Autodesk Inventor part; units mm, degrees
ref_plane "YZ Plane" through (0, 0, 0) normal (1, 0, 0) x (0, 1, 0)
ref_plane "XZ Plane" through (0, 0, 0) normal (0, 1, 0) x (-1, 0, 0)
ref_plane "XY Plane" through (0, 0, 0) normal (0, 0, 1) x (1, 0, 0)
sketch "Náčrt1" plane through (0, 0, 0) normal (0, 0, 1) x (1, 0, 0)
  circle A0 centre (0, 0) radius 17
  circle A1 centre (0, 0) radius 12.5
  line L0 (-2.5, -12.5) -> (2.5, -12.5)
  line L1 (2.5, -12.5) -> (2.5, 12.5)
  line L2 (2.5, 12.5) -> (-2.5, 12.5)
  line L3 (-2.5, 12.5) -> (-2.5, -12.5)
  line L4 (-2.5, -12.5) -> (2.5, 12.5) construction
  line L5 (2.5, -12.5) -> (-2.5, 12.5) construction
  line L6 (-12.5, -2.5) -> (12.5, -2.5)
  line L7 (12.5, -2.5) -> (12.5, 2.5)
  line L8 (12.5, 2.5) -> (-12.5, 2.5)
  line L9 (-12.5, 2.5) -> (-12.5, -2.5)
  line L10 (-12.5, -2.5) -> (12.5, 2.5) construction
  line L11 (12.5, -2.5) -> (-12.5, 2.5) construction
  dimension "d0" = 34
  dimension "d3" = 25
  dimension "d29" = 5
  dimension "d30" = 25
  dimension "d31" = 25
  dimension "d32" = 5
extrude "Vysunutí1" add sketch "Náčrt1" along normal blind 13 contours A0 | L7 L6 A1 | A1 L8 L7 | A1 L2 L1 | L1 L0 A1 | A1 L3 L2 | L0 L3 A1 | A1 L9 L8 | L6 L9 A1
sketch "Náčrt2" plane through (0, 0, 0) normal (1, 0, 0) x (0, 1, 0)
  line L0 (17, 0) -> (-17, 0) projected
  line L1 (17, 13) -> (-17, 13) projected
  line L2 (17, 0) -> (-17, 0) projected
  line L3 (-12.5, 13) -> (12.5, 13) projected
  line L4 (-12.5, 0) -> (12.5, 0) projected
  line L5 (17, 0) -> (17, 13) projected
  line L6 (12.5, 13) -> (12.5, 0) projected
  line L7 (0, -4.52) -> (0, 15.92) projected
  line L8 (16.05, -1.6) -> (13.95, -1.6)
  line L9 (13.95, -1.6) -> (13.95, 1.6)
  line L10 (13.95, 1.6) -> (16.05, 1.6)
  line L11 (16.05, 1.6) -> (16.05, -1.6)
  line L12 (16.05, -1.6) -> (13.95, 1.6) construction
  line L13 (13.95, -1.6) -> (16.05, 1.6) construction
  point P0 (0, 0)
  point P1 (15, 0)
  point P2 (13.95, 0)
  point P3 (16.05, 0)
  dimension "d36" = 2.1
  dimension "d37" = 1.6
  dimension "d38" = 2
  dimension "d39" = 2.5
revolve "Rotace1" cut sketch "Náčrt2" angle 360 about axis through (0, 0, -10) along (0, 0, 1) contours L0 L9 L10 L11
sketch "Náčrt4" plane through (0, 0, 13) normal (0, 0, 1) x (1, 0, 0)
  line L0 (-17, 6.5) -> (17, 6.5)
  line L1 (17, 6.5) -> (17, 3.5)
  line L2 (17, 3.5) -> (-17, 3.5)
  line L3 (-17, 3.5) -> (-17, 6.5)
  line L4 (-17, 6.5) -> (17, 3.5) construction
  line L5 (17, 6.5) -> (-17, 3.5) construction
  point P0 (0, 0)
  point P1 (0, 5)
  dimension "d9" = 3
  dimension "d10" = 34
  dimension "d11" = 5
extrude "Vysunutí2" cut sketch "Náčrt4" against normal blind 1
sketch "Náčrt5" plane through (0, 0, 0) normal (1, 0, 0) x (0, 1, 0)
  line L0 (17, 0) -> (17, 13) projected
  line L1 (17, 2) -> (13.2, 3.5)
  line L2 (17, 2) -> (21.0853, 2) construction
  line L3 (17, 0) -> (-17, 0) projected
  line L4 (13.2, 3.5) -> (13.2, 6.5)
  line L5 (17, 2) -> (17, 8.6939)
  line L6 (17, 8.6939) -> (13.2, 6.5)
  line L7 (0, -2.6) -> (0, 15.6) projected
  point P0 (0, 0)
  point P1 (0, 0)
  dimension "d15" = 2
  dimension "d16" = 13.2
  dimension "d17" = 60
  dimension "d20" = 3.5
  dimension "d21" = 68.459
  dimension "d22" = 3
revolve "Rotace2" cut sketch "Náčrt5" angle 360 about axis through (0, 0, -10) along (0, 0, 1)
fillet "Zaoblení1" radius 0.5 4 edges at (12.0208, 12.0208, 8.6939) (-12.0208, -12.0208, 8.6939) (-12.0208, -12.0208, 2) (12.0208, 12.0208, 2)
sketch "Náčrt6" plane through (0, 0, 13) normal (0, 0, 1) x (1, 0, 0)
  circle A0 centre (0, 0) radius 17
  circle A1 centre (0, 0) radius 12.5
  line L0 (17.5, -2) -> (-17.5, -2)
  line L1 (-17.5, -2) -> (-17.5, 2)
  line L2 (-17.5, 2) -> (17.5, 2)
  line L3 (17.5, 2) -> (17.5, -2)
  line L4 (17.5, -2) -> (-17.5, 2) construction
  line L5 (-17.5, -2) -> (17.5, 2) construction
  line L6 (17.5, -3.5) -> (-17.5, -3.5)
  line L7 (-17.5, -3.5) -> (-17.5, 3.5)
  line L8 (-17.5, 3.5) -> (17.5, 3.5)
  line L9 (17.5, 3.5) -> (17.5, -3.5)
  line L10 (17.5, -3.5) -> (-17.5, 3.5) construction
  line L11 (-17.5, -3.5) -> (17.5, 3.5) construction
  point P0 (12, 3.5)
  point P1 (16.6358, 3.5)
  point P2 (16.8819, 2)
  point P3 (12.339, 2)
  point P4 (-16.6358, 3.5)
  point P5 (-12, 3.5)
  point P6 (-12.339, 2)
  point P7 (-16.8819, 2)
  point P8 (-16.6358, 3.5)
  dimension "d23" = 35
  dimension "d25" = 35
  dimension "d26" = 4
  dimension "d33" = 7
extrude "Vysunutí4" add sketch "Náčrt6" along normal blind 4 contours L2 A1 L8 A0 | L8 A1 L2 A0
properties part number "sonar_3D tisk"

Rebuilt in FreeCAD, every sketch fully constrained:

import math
import FreeCAD as App
import Part
import Sketcher
Q = App.Units.Quantity


def edges_at(feature, points):
    """Names of the edges that pass closest to the given points."""
    edges = feature.Shape.Edges
    near = lambda p: min(range(len(edges)), key=lambda i: edges[i].distToShape(Part.Vertex(*p))[0])
    return sorted({f"Edge{near(p) + 1}" for p in points})

doc = App.newDocument("Part")
params = doc.addObject("Spreadsheet::Sheet", "Params")
for row, (alias, value) in enumerate([
    ("sketch1_diameter", "34 mm"),
    ("sketch1_diameter2", "25 mm"),
    ("pad1_length", "13 mm"),
    ("sketch2_width", "2.1 mm"),
    ("sketch2_height", "1.6 mm"),
    ("groove_angle", "360 deg"),
    ("sketch3_width", "34 mm"),
    ("sketch3_height", "3 mm"),
    ("pocket1_length", "1 mm"),
    ("sketch4_height", "3 mm"),
    ("groove2_angle", "360 deg"),
    ("fillet_radius", "0.5 mm"),
    ("sketch5_radius", "17 mm"),
    ("sketch5_radius2", "12.5 mm"),
    ("pad2_length", "4 mm"),
], start=1):
    params.set(f"A{row}", alias)
    params.set(f"B{row}", "=" + value)
    params.setAlias(f"B{row}", alias)

body = doc.addObject("PartDesign::Body", "Body")

# Sketch on XY plane
sketch1 = body.newObject("Sketcher::SketchObject", "Sketch")
sketch1.AttachmentSupport = (doc.getObject("XY_Plane"), [""])
sketch1.MapMode = "FlatFace"
sketch1.addGeometry([
    Part.Circle(App.Vector(0, 0, 0), App.Vector(0, 0, 1), 17),
    Part.Circle(App.Vector(0, 0, 0), App.Vector(0, 0, 1), 12),
], False)
sketch1.addConstraint([
    Sketcher.Constraint("Coincident", 0, 3, -1, 1),
    Sketcher.Constraint("Coincident", 1, 3, -1, 1),
    Sketcher.Constraint("Diameter", 0, 34.0),
    Sketcher.Constraint("Diameter", 1, 25.0),
])
sketch1.setExpression("Constraints[2]", "Params.sketch1_diameter")
sketch1.setExpression("Constraints[3]", "Params.sketch1_diameter2")
pad1 = body.newObject("PartDesign::Pad", "Pad")
pad1.Profile = sketch1
pad1.setExpression("Length", "Params.pad1_length")

# Sketch on YZ plane
sketch2 = body.newObject("Sketcher::SketchObject", "Sketch001")
sketch2.AttachmentSupport = (doc.getObject("YZ_Plane"), [""])
sketch2.MapMode = "FlatFace"
sketch2.addGeometry([
    Part.LineSegment(App.Vector(13.9, 0, 0), App.Vector(16.1, 0, 0)),
    Part.LineSegment(App.Vector(16.1, 0, 0), App.Vector(16.1, 1.6, 0)),
    Part.LineSegment(App.Vector(16.1, 1.6, 0), App.Vector(13.9, 1.6, 0)),
    Part.LineSegment(App.Vector(13.9, 1.6, 0), App.Vector(13.9, 0, 0)),
], False)
sketch2.addConstraint([
    Sketcher.Constraint("Coincident", 0, 2, 1, 1),
    Sketcher.Constraint("Coincident", 1, 2, 2, 1),
    Sketcher.Constraint("Coincident", 2, 2, 3, 1),
    Sketcher.Constraint("Coincident", 3, 2, 0, 1),
    Sketcher.Constraint("Horizontal", 0),
    Sketcher.Constraint("Vertical", 1),
    Sketcher.Constraint("Horizontal", 2),
    Sketcher.Constraint("Vertical", 3),
    Sketcher.Constraint("PointOnObject", 0, 2, -1),
    Sketcher.Constraint("DistanceX", 0, 1, 0, 2, 2.1),
    Sketcher.Constraint("DistanceY", 1, 1, 1, 2, 1.6),
    Sketcher.Constraint("DistanceX", -1, 1, 0, 2, 16.05),
])
sketch2.setExpression("Constraints[9]", "Params.sketch2_width")
sketch2.setExpression("Constraints[10]", "Params.sketch2_height")
groove = body.newObject("PartDesign::Groove", "Groove")
groove.Profile = sketch2
groove.ReferenceAxis = (sketch2, ["V_Axis"])
groove.setExpression("Angle", "Params.groove_angle")

# Sketch on XY plane
sketch3 = body.newObject("Sketcher::SketchObject", "Sketch002")
sketch3.AttachmentSupport = (doc.getObject("XY_Plane"), [""])
sketch3.MapMode = "FlatFace"
sketch3.AttachmentOffset = App.Placement(App.Vector(0, 0, 13), App.Rotation())
sketch3.addGeometry([
    Part.LineSegment(App.Vector(17, 6.5, 0), App.Vector(-17, 6.5, 0)),
    Part.LineSegment(App.Vector(-17, 6.5, 0), App.Vector(-17, 3.5, 0)),
    Part.LineSegment(App.Vector(-17, 3.5, 0), App.Vector(17, 3.5, 0)),
    Part.LineSegment(App.Vector(17, 3.5, 0), App.Vector(17, 6.5, 0)),
], False)
sketch3.addConstraint([
    Sketcher.Constraint("Coincident", 0, 2, 1, 1),
    Sketcher.Constraint("Coincident", 1, 2, 2, 1),
    Sketcher.Constraint("Coincident", 2, 2, 3, 1),
    Sketcher.Constraint("Coincident", 3, 2, 0, 1),
    Sketcher.Constraint("Horizontal", 0),
    Sketcher.Constraint("Vertical", 1),
    Sketcher.Constraint("Horizontal", 2),
    Sketcher.Constraint("Vertical", 3),
    Sketcher.Constraint("DistanceX", 0, 2, 0, 1, 34.0),
    Sketcher.Constraint("DistanceY", 1, 2, 1, 1, 3.0),
    Sketcher.Constraint("DistanceX", 0, 2, -1, 1, 17.0),
    Sketcher.Constraint("DistanceY", -1, 1, 0, 2, 6.5),
])
sketch3.setExpression("Constraints[8]", "Params.sketch3_width")
sketch3.setExpression("Constraints[9]", "Params.sketch3_height")
pocket1 = body.newObject("PartDesign::Pocket", "Pocket")
pocket1.Profile = sketch3
pocket1.setExpression("Length", "Params.pocket1_length")

# Sketch on YZ plane
sketch4 = body.newObject("Sketcher::SketchObject", "Sketch003")
sketch4.AttachmentSupport = (doc.getObject("YZ_Plane"), [""])
sketch4.MapMode = "FlatFace"
sketch4.addGeometry([
    Part.LineSegment(App.Vector(13.2, 3.5, 0), App.Vector(17, 2, 0)),
    Part.LineSegment(App.Vector(17, 2, 0), App.Vector(17, 8.7, 0)),
    Part.LineSegment(App.Vector(17, 8.7, 0), App.Vector(13.2, 6.5, 0)),
    Part.LineSegment(App.Vector(13.2, 6.5, 0), App.Vector(13.2, 3.5, 0)),
], False)
sketch4.addConstraint([
    Sketcher.Constraint("Coincident", 0, 2, 1, 1),
    Sketcher.Constraint("Coincident", 1, 2, 2, 1),
    Sketcher.Constraint("Coincident", 2, 2, 3, 1),
    Sketcher.Constraint("Coincident", 3, 2, 0, 1),
    Sketcher.Constraint("Vertical", 1),
    Sketcher.Constraint("Vertical", 3),
    Sketcher.Constraint("DistanceY", 3, 2, 3, 1, 3.0),
    Sketcher.Constraint("DistanceY", -1, 1, 0, 2, 2.0),
    Sketcher.Constraint("DistanceX", -1, 1, 2, 2, 13.2),
    Sketcher.Constraint("DistanceY", -1, 1, 3, 2, 3.5),
    Sketcher.Constraint("Angle", 2, Q("-150.0004 deg")),
    Sketcher.Constraint("DistanceX", -1, 1, 0, 2, 17.0),
])
sketch4.setExpression("Constraints[6]", "Params.sketch4_height")
groove2 = body.newObject("PartDesign::Groove", "Groove001")
groove2.Profile = sketch4
groove2.ReferenceAxis = (sketch4, ["V_Axis"])
groove2.setExpression("Angle", "Params.groove2_angle")
doc.recompute()

fillet = body.newObject("PartDesign::Fillet", "Fillet")
fillet.Base = (groove2, edges_at(groove2, [
    (12.021, 12.021, 8.694),
    (-12.021, -12.021, 8.694),
    (-12.021, -12.021, 2),
    (12.021, 12.021, 2),
]))
fillet.setExpression("Radius", "Params.fillet_radius")

# Sketch on XY plane
sketch5 = body.newObject("Sketcher::SketchObject", "Sketch004")
sketch5.AttachmentSupport = (doc.getObject("XY_Plane"), [""])
sketch5.MapMode = "FlatFace"
sketch5.AttachmentOffset = App.Placement(App.Vector(0, 0, 13), App.Rotation())
sketch5.addGeometry([
    Part.LineSegment(App.Vector(12.3, 2, 0), App.Vector(16.9, 2, 0)),  # 0
    Part.ArcOfCircle(Part.Circle(App.Vector(0, 0, 0), App.Vector(0, 0, 1), 17), math.radians(6.76), math.radians(11.88)),  # 1
    Part.LineSegment(App.Vector(16.6, 3.5, 0), App.Vector(12, 3.5, 0)),  # 2
    Part.ArcOfCircle(Part.Circle(App.Vector(0, 0, 0), App.Vector(0, 0, 1), 12.5), math.radians(9.21), math.radians(16.26)),  # 3
    Part.LineSegment(App.Vector(-12, 3.5, 0), App.Vector(-16.6, 3.5, 0)),  # 4
    Part.ArcOfCircle(Part.Circle(App.Vector(0, 0, 0), App.Vector(0, 0, 1), 17), math.radians(168.12), math.radians(173.24)),  # 5
    Part.LineSegment(App.Vector(-16.9, 2, 0), App.Vector(-12.3, 2, 0)),  # 6
    Part.ArcOfCircle(Part.Circle(App.Vector(0, 0, 0), App.Vector(0, 0, 1), 12.5), math.radians(163.74), math.radians(170.79)),  # 7
], False)
sketch5.addConstraint([
    Sketcher.Constraint("Coincident", 0, 2, 1, 1),
    Sketcher.Constraint("Coincident", 1, 2, 2, 1),
    Sketcher.Constraint("Coincident", 2, 2, 3, 2),
    Sketcher.Constraint("Coincident", 3, 1, 0, 1),
    Sketcher.Constraint("Coincident", 4, 2, 5, 1),
    Sketcher.Constraint("Coincident", 5, 2, 6, 1),
    Sketcher.Constraint("Coincident", 6, 2, 7, 2),
    Sketcher.Constraint("Coincident", 7, 1, 4, 1),
    Sketcher.Constraint("Horizontal", 0),
    Sketcher.Constraint("Horizontal", 2),
    Sketcher.Constraint("Horizontal", 4),
    Sketcher.Constraint("Horizontal", 6),
    Sketcher.Constraint("Coincident", 1, 3, -1, 1),
    Sketcher.Constraint("Coincident", 3, 3, -1, 1),
    Sketcher.Constraint("Coincident", 5, 3, -1, 1),
    Sketcher.Constraint("Coincident", 7, 3, -1, 1),
    Sketcher.Constraint("Equal", 1, 5),
    Sketcher.Constraint("Equal", 3, 7),
    Sketcher.Constraint("Horizontal", 2, 2, 4, 2),
    Sketcher.Constraint("Horizontal", 3, 1, 5, 2),
    Sketcher.Constraint("Radius", 1, 17.0),
    Sketcher.Constraint("Radius", 3, 12.5),
    Sketcher.Constraint("DistanceY", -1, 1, 0, 2, 2.0),
    Sketcher.Constraint("DistanceX", -1, 1, 2, 2, 12.0),
])
sketch5.setExpression("Constraints[20]", "Params.sketch5_radius")
sketch5.setExpression("Constraints[21]", "Params.sketch5_radius2")
pad2 = body.newObject("PartDesign::Pad", "Pad001")
pad2.Profile = sketch5
pad2.setExpression("Length", "Params.pad2_length")

doc.recompute()
